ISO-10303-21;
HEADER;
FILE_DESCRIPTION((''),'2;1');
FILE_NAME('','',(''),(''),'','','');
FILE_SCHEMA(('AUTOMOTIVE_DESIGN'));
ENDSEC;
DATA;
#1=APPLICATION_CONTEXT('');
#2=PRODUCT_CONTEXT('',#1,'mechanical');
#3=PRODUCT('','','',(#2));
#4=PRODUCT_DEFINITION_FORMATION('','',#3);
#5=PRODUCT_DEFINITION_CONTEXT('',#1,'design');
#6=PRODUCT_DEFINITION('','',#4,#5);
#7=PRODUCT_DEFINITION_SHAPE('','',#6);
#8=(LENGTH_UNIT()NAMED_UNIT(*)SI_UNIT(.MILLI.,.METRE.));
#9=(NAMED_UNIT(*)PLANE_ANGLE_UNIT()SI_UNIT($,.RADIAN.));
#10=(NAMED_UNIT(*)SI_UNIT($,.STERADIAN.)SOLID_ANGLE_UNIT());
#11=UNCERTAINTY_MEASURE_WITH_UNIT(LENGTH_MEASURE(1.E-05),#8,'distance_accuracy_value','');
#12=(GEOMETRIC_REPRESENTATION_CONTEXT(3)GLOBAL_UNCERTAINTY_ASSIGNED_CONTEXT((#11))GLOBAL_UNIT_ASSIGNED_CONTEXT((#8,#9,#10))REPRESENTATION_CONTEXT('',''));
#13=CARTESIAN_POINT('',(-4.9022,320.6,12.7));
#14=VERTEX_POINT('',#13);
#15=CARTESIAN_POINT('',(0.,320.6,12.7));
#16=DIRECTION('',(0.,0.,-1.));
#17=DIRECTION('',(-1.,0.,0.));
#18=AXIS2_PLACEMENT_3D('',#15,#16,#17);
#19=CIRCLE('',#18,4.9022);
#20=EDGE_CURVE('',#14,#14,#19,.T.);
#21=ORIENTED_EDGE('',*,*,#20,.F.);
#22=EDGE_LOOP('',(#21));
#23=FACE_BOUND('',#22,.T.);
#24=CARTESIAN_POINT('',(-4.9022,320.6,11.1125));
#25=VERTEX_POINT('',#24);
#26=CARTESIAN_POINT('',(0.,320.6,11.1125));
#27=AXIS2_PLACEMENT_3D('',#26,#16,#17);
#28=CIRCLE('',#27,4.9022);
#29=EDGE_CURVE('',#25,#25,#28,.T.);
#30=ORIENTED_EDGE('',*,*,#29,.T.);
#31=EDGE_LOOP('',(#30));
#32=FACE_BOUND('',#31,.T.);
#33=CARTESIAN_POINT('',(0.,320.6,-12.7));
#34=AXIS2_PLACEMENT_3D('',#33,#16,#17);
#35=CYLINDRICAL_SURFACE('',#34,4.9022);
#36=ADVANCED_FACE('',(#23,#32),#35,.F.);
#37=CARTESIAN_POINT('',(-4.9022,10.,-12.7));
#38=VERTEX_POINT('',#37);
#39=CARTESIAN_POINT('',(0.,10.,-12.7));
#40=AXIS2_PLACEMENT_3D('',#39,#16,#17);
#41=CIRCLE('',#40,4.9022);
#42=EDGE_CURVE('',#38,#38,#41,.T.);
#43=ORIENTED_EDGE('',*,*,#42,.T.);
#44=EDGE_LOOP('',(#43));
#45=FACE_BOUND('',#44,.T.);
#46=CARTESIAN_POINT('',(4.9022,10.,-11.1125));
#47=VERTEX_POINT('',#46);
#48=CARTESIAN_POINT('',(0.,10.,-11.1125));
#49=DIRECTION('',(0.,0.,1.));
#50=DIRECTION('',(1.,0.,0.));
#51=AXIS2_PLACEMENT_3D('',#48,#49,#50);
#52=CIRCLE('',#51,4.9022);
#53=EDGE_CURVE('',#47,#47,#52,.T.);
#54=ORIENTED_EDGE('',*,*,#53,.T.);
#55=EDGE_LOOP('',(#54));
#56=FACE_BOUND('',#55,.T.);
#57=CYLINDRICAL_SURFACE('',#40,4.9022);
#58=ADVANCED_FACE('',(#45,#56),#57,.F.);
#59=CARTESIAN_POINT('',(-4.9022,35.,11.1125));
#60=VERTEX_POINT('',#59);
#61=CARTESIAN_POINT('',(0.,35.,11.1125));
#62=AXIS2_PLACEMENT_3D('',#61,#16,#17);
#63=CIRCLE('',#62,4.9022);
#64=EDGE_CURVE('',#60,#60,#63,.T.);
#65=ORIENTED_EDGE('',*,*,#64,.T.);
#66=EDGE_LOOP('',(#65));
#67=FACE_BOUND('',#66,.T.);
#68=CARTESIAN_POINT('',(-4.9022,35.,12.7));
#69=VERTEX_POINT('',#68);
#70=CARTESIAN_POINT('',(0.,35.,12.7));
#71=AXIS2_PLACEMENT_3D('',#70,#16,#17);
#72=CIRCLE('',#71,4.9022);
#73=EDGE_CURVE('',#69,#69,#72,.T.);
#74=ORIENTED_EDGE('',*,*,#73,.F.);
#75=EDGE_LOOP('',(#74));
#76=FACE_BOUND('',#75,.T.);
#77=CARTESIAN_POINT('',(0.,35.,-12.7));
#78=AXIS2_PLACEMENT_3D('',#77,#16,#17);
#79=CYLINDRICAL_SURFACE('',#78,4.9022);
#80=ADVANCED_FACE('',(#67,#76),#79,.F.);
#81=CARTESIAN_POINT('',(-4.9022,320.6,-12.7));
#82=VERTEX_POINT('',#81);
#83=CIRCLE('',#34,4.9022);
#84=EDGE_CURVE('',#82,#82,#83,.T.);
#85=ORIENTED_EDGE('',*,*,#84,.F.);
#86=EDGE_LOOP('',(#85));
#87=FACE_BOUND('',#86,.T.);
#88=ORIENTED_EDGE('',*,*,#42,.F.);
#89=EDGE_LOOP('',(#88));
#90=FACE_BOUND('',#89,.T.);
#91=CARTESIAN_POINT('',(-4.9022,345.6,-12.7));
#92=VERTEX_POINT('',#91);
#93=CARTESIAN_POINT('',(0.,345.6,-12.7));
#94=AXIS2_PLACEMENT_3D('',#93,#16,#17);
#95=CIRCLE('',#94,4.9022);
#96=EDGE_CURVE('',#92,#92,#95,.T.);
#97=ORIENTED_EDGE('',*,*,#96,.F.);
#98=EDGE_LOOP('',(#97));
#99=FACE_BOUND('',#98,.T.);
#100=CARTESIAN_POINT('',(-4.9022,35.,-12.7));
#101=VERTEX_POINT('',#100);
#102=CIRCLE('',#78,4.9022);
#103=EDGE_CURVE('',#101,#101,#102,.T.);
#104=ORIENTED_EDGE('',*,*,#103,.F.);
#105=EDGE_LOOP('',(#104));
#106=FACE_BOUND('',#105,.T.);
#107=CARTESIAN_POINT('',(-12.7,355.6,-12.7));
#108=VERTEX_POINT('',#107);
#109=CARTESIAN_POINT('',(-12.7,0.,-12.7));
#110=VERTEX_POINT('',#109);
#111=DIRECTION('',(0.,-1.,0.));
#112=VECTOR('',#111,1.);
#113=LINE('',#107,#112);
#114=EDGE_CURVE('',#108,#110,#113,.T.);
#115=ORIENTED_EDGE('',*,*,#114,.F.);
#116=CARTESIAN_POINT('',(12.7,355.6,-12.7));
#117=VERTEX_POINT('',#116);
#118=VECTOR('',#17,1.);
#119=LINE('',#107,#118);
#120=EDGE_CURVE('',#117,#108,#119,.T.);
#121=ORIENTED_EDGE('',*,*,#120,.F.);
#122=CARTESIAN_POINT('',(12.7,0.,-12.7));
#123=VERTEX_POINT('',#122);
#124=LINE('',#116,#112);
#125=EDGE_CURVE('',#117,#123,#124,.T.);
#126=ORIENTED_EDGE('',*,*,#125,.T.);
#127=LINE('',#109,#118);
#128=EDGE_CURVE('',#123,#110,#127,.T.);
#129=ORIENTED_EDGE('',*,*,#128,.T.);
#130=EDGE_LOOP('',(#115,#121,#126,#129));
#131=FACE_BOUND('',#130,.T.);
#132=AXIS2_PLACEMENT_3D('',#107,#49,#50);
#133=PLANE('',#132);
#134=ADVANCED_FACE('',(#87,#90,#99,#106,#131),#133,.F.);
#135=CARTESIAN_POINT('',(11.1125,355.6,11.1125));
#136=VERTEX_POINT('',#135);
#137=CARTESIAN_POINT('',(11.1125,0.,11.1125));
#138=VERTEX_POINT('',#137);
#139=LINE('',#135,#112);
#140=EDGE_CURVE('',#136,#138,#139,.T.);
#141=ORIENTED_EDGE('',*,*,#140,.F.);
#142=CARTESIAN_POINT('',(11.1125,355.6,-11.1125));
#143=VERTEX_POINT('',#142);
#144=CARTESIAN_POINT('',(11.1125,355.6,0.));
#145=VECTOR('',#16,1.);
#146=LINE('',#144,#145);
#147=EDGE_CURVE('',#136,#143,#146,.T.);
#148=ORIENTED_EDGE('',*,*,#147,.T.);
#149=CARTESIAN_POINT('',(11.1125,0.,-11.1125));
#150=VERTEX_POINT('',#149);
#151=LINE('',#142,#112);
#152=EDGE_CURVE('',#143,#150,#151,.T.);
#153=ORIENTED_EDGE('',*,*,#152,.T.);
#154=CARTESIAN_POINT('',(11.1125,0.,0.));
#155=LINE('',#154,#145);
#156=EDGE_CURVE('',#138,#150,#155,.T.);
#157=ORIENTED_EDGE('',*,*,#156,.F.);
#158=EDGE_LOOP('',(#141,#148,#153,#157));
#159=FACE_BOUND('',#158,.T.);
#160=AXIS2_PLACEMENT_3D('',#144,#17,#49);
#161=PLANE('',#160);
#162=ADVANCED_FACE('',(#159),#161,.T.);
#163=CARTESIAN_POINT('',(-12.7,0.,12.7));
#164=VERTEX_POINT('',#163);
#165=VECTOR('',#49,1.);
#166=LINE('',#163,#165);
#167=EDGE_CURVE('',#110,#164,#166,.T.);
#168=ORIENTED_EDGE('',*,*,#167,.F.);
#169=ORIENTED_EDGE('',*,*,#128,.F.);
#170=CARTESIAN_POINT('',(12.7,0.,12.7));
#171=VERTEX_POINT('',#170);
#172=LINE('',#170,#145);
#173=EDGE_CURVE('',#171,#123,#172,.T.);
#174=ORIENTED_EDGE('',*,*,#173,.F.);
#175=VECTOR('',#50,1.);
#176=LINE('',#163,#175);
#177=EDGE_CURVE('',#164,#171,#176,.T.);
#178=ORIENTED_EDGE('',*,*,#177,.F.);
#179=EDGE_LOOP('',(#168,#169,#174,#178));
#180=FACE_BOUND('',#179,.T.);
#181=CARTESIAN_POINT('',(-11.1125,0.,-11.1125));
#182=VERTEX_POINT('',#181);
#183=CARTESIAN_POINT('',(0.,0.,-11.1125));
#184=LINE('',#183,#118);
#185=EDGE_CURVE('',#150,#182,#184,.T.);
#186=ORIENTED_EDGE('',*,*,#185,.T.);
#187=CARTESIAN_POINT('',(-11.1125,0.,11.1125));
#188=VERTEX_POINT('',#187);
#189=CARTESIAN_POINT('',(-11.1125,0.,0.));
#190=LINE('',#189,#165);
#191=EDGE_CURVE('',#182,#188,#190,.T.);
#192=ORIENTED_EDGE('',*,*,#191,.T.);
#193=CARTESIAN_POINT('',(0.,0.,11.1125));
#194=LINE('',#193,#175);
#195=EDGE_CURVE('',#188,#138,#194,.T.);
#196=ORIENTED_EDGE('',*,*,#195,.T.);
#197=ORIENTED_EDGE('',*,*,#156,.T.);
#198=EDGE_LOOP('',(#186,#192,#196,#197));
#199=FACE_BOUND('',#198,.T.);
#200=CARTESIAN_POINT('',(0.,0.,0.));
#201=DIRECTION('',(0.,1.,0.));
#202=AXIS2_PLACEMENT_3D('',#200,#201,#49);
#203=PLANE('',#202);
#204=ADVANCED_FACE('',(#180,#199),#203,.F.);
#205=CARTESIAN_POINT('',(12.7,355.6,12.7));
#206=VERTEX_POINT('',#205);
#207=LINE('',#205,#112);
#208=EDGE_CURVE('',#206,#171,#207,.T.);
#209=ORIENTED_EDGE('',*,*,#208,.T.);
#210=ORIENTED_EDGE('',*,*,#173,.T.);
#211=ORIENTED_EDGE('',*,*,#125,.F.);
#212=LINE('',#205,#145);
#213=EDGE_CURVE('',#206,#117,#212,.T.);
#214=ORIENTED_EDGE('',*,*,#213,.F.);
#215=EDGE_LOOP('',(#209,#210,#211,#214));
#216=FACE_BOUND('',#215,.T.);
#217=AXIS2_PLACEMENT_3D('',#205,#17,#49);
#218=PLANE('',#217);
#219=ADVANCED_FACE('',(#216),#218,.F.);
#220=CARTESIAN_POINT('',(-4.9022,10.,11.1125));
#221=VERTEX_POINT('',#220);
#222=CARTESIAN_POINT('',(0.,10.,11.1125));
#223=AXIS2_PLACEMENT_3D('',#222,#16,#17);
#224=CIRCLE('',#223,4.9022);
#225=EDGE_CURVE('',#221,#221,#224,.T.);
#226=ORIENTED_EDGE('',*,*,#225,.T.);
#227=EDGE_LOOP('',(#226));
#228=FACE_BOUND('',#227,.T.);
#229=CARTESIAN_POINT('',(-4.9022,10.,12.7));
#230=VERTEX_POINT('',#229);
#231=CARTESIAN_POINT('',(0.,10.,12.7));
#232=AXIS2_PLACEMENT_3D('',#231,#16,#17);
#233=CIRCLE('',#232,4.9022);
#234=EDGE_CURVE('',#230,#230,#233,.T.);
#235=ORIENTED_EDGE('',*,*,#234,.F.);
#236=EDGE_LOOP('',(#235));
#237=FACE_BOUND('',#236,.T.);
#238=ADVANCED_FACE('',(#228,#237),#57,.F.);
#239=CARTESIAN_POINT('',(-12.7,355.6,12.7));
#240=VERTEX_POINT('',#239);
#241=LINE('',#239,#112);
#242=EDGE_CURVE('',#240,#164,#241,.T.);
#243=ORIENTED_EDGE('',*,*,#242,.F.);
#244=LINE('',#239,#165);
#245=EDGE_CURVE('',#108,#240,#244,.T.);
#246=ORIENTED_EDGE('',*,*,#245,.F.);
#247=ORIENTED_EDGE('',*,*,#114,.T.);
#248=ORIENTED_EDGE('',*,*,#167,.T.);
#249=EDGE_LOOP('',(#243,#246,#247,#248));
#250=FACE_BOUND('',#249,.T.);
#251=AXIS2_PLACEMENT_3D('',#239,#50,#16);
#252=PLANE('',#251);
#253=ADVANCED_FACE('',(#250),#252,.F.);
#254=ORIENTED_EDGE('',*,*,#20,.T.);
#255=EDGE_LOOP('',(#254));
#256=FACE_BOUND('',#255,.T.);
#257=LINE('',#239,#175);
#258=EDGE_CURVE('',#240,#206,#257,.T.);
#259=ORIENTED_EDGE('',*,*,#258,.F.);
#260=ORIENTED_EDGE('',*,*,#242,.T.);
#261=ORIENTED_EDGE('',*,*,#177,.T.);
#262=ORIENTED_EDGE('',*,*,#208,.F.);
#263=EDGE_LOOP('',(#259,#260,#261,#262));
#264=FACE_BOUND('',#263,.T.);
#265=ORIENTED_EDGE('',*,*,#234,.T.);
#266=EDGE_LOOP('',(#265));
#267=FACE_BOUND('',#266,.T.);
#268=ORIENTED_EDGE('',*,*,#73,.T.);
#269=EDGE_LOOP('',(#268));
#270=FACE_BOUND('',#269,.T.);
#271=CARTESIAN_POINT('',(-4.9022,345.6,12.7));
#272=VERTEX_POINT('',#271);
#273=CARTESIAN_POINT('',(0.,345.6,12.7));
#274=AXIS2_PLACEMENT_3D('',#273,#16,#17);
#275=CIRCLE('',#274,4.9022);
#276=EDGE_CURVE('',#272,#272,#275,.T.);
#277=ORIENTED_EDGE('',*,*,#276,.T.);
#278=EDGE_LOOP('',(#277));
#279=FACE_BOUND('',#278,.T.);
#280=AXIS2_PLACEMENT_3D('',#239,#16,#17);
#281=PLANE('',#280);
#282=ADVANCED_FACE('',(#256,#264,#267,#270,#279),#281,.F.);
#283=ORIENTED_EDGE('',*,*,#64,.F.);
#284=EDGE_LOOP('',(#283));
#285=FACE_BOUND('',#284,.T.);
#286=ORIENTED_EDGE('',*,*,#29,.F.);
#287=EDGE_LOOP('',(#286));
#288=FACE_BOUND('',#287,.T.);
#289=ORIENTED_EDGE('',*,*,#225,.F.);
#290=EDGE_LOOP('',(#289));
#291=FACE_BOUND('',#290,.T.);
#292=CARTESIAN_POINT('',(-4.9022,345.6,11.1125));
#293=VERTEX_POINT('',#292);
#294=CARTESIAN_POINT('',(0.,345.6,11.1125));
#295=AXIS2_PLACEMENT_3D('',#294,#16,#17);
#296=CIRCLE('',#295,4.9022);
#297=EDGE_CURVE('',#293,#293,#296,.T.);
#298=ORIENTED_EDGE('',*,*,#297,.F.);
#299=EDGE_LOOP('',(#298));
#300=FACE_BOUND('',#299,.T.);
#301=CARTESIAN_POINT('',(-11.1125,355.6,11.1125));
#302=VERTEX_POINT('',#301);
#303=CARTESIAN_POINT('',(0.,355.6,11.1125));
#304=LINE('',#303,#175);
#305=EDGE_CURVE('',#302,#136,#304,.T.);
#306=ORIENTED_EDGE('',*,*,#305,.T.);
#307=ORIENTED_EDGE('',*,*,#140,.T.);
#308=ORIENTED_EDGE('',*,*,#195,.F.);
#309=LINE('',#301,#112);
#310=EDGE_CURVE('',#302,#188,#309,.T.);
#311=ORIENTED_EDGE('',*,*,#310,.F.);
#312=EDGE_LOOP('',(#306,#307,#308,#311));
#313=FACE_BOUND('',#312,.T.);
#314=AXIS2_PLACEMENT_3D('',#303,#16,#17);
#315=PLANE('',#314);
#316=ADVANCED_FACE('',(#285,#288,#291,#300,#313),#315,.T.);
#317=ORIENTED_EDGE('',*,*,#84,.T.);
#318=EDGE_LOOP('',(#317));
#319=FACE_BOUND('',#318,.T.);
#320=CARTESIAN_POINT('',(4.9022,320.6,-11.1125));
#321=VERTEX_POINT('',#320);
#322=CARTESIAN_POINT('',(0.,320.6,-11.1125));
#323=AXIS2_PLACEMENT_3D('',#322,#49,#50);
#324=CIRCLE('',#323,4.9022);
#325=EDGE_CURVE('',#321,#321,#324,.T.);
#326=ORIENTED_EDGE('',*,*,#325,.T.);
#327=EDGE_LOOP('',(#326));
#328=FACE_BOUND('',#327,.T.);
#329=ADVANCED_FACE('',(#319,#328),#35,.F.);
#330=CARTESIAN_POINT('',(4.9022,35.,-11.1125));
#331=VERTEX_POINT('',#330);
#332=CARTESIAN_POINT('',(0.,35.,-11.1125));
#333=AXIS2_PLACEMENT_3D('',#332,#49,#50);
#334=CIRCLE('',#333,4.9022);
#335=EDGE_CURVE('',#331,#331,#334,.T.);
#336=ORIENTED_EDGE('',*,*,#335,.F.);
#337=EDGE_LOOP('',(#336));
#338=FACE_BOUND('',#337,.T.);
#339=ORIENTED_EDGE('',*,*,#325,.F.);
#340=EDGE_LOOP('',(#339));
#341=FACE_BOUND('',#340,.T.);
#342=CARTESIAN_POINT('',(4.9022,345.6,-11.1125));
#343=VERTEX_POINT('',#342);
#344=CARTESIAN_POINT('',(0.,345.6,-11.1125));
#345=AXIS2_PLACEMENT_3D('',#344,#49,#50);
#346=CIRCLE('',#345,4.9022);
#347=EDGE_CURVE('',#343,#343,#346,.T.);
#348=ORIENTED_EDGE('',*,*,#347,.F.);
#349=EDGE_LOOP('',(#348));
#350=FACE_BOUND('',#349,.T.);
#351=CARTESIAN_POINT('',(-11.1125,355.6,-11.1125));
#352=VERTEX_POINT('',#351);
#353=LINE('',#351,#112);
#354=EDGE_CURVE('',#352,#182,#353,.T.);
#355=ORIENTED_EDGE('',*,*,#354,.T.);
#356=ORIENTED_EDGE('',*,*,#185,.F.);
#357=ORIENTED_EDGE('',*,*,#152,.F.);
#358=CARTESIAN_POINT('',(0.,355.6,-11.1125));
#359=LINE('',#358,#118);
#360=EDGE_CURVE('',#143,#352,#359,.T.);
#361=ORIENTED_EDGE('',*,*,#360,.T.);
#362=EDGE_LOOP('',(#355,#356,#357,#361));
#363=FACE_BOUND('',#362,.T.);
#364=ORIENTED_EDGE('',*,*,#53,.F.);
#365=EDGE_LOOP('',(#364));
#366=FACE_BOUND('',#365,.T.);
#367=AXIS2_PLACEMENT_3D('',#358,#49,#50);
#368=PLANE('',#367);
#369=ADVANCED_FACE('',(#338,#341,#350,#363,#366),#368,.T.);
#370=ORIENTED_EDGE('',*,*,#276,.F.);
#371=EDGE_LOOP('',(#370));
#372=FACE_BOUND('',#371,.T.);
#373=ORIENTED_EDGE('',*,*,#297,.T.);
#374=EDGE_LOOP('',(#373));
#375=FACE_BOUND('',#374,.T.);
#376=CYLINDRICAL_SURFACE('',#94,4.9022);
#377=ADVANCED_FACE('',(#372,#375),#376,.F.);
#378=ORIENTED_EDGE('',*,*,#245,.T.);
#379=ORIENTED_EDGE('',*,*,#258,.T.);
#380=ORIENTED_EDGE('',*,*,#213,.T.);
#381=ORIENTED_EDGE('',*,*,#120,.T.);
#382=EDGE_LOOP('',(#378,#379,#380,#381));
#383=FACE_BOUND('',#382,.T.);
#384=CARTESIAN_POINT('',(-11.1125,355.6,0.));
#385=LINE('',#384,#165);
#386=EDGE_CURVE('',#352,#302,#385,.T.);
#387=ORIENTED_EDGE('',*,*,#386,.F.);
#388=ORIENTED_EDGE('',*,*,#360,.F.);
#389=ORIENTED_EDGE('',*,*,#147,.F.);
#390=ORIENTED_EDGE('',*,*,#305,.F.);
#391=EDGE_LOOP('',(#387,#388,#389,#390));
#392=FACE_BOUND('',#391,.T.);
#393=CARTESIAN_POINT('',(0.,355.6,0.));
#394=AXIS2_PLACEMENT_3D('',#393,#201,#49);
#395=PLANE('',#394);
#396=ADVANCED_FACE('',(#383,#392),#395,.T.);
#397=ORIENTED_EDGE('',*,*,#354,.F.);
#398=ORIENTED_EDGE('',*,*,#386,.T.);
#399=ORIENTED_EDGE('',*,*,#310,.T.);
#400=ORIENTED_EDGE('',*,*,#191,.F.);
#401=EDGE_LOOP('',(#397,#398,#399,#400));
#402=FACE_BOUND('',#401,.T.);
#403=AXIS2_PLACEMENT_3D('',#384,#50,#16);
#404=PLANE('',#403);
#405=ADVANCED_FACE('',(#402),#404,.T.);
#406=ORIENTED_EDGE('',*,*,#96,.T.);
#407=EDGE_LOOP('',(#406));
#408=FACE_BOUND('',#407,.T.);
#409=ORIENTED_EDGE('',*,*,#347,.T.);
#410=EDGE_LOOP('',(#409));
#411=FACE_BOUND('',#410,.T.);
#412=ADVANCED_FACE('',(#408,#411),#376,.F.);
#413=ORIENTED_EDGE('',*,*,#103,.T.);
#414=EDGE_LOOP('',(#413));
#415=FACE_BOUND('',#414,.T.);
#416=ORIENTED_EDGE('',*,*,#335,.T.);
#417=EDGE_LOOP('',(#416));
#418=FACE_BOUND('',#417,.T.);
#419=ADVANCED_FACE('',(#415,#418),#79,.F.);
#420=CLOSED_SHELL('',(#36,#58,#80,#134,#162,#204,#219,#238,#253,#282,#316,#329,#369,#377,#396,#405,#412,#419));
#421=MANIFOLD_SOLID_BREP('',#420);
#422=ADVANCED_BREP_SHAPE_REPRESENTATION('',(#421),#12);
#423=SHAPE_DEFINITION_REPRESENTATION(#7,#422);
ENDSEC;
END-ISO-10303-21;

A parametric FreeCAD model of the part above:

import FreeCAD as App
import Part
import Sketcher
from FreeCAD import Vector
Q = App.Units.Quantity

doc = App.newDocument("Part")
body = doc.addObject("PartDesign::Body", "Body")

sketch1 = body.newObject("Sketcher::SketchObject", "Sketch")
sketch1.AttachmentSupport = (doc.getObject("XZ_Plane"), [""])
sketch1.MapMode = "FlatFace"
sketch1.addGeometry([
    Part.LineSegment(Vector(-12.7, -12.7, 0), Vector(-12.7, 12.7, 0)),
    Part.LineSegment(Vector(-12.7, 12.7, 0), Vector(12.7, 12.7, 0)),
    Part.LineSegment(Vector(12.7, 12.7, 0), Vector(12.7, -12.7, 0)),
    Part.LineSegment(Vector(12.7, -12.7, 0), Vector(-12.7, -12.7, 0)),
    Part.LineSegment(Vector(11.1125, 11.1125, 0), Vector(-11.1125, 11.1125, 0)),
    Part.LineSegment(Vector(-11.1125, 11.1125, 0), Vector(-11.1125, -11.1125, 0)),
    Part.LineSegment(Vector(-11.1125, -11.1125, 0), Vector(11.1125, -11.1125, 0)),
    Part.LineSegment(Vector(11.1125, -11.1125, 0), Vector(11.1125, 11.1125, 0)),
], False)
sketch1.addConstraint([
    Sketcher.Constraint("Coincident", 0, 2, 1, 1),
    Sketcher.Constraint("Coincident", 1, 2, 2, 1),
    Sketcher.Constraint("Coincident", 2, 2, 3, 1),
    Sketcher.Constraint("Coincident", 3, 2, 0, 1),
    Sketcher.Constraint("Coincident", 4, 2, 5, 1),
    Sketcher.Constraint("Coincident", 5, 2, 6, 1),
    Sketcher.Constraint("Coincident", 6, 2, 7, 1),
    Sketcher.Constraint("Coincident", 7, 2, 4, 1),
    Sketcher.Constraint("Vertical", 0),
    Sketcher.Constraint("Horizontal", 1),
    Sketcher.Constraint("Vertical", 2),
    Sketcher.Constraint("Horizontal", 3),
    Sketcher.Constraint("Horizontal", 4),
    Sketcher.Constraint("Vertical", 5),
    Sketcher.Constraint("Horizontal", 6),
    Sketcher.Constraint("Vertical", 7),
    Sketcher.Constraint("Symmetric", 0, 2, 2, 2, -1, 1),
    Sketcher.Constraint("Symmetric", 4, 2, 6, 2, -1, 1),
    Sketcher.Constraint("Equal", 3, 0),
    Sketcher.Constraint("Equal", 6, 5),
    Sketcher.Constraint("DistanceX", 1, 1, 1, 2, Q("1 in")),
    Sketcher.Constraint("DistanceX", 4, 2, 4, 1, Q("0.875 in")),
])
pad1 = body.newObject("PartDesign::Pad", "Pad")
pad1.Profile = sketch1
pad1.Length = Q("14 in")
pad1.Reversed = True

sketch2 = body.newObject("Sketcher::SketchObject", "Sketch001")
sketch2.AttachmentSupport = (doc.getObject("XY_Plane"), [""])
sketch2.MapMode = "FlatFace"
sketch2.AttachmentOffset = App.Placement(Vector(0, 0, -0.5 * 25.4), App.Rotation())
sketch2.addGeometry([
    Part.Circle(Vector(0, 345.6, 0), Vector(0, 0, 1), 4.9022),
    Part.Circle(Vector(0, 320.6, 0), Vector(0, 0, 1), 4.9022),
    Part.Circle(Vector(0, 35, 0), Vector(0, 0, 1), 4.9022),
    Part.Circle(Vector(0, 10, 0), Vector(0, 0, 1), 4.9022),
], False)
sketch2.addConstraint([
    Sketcher.Constraint("Equal", 0, 1),
    Sketcher.Constraint("Equal", 1, 2),
    Sketcher.Constraint("Equal", 2, 3),
    Sketcher.Constraint("PointOnObject", 0, 3, -2),
    Sketcher.Constraint("PointOnObject", 1, 3, -2),
    Sketcher.Constraint("PointOnObject", 2, 3, -2),
    Sketcher.Constraint("PointOnObject", 3, 3, -2),
    Sketcher.Constraint("Diameter", 0, Q("0.386 in")),
    Sketcher.Constraint("DistanceY", -1, 1, 0, 3, 345.6),
    Sketcher.Constraint("DistanceY", -1, 1, 1, 3, 320.6),
    Sketcher.Constraint("DistanceY", -1, 1, 2, 3, 35.0),
    Sketcher.Constraint("DistanceY", -1, 1, 3, 3, 10.0),
])
doc.recompute()
hole = body.newObject("PartDesign::Hole", "Hole")
hole.Profile = sketch2
hole.ThreadType = "None"
hole.Diameter = Q("0.386 in")
hole.DepthType = "ThroughAll"
hole.Reversed = True

doc.recompute()
